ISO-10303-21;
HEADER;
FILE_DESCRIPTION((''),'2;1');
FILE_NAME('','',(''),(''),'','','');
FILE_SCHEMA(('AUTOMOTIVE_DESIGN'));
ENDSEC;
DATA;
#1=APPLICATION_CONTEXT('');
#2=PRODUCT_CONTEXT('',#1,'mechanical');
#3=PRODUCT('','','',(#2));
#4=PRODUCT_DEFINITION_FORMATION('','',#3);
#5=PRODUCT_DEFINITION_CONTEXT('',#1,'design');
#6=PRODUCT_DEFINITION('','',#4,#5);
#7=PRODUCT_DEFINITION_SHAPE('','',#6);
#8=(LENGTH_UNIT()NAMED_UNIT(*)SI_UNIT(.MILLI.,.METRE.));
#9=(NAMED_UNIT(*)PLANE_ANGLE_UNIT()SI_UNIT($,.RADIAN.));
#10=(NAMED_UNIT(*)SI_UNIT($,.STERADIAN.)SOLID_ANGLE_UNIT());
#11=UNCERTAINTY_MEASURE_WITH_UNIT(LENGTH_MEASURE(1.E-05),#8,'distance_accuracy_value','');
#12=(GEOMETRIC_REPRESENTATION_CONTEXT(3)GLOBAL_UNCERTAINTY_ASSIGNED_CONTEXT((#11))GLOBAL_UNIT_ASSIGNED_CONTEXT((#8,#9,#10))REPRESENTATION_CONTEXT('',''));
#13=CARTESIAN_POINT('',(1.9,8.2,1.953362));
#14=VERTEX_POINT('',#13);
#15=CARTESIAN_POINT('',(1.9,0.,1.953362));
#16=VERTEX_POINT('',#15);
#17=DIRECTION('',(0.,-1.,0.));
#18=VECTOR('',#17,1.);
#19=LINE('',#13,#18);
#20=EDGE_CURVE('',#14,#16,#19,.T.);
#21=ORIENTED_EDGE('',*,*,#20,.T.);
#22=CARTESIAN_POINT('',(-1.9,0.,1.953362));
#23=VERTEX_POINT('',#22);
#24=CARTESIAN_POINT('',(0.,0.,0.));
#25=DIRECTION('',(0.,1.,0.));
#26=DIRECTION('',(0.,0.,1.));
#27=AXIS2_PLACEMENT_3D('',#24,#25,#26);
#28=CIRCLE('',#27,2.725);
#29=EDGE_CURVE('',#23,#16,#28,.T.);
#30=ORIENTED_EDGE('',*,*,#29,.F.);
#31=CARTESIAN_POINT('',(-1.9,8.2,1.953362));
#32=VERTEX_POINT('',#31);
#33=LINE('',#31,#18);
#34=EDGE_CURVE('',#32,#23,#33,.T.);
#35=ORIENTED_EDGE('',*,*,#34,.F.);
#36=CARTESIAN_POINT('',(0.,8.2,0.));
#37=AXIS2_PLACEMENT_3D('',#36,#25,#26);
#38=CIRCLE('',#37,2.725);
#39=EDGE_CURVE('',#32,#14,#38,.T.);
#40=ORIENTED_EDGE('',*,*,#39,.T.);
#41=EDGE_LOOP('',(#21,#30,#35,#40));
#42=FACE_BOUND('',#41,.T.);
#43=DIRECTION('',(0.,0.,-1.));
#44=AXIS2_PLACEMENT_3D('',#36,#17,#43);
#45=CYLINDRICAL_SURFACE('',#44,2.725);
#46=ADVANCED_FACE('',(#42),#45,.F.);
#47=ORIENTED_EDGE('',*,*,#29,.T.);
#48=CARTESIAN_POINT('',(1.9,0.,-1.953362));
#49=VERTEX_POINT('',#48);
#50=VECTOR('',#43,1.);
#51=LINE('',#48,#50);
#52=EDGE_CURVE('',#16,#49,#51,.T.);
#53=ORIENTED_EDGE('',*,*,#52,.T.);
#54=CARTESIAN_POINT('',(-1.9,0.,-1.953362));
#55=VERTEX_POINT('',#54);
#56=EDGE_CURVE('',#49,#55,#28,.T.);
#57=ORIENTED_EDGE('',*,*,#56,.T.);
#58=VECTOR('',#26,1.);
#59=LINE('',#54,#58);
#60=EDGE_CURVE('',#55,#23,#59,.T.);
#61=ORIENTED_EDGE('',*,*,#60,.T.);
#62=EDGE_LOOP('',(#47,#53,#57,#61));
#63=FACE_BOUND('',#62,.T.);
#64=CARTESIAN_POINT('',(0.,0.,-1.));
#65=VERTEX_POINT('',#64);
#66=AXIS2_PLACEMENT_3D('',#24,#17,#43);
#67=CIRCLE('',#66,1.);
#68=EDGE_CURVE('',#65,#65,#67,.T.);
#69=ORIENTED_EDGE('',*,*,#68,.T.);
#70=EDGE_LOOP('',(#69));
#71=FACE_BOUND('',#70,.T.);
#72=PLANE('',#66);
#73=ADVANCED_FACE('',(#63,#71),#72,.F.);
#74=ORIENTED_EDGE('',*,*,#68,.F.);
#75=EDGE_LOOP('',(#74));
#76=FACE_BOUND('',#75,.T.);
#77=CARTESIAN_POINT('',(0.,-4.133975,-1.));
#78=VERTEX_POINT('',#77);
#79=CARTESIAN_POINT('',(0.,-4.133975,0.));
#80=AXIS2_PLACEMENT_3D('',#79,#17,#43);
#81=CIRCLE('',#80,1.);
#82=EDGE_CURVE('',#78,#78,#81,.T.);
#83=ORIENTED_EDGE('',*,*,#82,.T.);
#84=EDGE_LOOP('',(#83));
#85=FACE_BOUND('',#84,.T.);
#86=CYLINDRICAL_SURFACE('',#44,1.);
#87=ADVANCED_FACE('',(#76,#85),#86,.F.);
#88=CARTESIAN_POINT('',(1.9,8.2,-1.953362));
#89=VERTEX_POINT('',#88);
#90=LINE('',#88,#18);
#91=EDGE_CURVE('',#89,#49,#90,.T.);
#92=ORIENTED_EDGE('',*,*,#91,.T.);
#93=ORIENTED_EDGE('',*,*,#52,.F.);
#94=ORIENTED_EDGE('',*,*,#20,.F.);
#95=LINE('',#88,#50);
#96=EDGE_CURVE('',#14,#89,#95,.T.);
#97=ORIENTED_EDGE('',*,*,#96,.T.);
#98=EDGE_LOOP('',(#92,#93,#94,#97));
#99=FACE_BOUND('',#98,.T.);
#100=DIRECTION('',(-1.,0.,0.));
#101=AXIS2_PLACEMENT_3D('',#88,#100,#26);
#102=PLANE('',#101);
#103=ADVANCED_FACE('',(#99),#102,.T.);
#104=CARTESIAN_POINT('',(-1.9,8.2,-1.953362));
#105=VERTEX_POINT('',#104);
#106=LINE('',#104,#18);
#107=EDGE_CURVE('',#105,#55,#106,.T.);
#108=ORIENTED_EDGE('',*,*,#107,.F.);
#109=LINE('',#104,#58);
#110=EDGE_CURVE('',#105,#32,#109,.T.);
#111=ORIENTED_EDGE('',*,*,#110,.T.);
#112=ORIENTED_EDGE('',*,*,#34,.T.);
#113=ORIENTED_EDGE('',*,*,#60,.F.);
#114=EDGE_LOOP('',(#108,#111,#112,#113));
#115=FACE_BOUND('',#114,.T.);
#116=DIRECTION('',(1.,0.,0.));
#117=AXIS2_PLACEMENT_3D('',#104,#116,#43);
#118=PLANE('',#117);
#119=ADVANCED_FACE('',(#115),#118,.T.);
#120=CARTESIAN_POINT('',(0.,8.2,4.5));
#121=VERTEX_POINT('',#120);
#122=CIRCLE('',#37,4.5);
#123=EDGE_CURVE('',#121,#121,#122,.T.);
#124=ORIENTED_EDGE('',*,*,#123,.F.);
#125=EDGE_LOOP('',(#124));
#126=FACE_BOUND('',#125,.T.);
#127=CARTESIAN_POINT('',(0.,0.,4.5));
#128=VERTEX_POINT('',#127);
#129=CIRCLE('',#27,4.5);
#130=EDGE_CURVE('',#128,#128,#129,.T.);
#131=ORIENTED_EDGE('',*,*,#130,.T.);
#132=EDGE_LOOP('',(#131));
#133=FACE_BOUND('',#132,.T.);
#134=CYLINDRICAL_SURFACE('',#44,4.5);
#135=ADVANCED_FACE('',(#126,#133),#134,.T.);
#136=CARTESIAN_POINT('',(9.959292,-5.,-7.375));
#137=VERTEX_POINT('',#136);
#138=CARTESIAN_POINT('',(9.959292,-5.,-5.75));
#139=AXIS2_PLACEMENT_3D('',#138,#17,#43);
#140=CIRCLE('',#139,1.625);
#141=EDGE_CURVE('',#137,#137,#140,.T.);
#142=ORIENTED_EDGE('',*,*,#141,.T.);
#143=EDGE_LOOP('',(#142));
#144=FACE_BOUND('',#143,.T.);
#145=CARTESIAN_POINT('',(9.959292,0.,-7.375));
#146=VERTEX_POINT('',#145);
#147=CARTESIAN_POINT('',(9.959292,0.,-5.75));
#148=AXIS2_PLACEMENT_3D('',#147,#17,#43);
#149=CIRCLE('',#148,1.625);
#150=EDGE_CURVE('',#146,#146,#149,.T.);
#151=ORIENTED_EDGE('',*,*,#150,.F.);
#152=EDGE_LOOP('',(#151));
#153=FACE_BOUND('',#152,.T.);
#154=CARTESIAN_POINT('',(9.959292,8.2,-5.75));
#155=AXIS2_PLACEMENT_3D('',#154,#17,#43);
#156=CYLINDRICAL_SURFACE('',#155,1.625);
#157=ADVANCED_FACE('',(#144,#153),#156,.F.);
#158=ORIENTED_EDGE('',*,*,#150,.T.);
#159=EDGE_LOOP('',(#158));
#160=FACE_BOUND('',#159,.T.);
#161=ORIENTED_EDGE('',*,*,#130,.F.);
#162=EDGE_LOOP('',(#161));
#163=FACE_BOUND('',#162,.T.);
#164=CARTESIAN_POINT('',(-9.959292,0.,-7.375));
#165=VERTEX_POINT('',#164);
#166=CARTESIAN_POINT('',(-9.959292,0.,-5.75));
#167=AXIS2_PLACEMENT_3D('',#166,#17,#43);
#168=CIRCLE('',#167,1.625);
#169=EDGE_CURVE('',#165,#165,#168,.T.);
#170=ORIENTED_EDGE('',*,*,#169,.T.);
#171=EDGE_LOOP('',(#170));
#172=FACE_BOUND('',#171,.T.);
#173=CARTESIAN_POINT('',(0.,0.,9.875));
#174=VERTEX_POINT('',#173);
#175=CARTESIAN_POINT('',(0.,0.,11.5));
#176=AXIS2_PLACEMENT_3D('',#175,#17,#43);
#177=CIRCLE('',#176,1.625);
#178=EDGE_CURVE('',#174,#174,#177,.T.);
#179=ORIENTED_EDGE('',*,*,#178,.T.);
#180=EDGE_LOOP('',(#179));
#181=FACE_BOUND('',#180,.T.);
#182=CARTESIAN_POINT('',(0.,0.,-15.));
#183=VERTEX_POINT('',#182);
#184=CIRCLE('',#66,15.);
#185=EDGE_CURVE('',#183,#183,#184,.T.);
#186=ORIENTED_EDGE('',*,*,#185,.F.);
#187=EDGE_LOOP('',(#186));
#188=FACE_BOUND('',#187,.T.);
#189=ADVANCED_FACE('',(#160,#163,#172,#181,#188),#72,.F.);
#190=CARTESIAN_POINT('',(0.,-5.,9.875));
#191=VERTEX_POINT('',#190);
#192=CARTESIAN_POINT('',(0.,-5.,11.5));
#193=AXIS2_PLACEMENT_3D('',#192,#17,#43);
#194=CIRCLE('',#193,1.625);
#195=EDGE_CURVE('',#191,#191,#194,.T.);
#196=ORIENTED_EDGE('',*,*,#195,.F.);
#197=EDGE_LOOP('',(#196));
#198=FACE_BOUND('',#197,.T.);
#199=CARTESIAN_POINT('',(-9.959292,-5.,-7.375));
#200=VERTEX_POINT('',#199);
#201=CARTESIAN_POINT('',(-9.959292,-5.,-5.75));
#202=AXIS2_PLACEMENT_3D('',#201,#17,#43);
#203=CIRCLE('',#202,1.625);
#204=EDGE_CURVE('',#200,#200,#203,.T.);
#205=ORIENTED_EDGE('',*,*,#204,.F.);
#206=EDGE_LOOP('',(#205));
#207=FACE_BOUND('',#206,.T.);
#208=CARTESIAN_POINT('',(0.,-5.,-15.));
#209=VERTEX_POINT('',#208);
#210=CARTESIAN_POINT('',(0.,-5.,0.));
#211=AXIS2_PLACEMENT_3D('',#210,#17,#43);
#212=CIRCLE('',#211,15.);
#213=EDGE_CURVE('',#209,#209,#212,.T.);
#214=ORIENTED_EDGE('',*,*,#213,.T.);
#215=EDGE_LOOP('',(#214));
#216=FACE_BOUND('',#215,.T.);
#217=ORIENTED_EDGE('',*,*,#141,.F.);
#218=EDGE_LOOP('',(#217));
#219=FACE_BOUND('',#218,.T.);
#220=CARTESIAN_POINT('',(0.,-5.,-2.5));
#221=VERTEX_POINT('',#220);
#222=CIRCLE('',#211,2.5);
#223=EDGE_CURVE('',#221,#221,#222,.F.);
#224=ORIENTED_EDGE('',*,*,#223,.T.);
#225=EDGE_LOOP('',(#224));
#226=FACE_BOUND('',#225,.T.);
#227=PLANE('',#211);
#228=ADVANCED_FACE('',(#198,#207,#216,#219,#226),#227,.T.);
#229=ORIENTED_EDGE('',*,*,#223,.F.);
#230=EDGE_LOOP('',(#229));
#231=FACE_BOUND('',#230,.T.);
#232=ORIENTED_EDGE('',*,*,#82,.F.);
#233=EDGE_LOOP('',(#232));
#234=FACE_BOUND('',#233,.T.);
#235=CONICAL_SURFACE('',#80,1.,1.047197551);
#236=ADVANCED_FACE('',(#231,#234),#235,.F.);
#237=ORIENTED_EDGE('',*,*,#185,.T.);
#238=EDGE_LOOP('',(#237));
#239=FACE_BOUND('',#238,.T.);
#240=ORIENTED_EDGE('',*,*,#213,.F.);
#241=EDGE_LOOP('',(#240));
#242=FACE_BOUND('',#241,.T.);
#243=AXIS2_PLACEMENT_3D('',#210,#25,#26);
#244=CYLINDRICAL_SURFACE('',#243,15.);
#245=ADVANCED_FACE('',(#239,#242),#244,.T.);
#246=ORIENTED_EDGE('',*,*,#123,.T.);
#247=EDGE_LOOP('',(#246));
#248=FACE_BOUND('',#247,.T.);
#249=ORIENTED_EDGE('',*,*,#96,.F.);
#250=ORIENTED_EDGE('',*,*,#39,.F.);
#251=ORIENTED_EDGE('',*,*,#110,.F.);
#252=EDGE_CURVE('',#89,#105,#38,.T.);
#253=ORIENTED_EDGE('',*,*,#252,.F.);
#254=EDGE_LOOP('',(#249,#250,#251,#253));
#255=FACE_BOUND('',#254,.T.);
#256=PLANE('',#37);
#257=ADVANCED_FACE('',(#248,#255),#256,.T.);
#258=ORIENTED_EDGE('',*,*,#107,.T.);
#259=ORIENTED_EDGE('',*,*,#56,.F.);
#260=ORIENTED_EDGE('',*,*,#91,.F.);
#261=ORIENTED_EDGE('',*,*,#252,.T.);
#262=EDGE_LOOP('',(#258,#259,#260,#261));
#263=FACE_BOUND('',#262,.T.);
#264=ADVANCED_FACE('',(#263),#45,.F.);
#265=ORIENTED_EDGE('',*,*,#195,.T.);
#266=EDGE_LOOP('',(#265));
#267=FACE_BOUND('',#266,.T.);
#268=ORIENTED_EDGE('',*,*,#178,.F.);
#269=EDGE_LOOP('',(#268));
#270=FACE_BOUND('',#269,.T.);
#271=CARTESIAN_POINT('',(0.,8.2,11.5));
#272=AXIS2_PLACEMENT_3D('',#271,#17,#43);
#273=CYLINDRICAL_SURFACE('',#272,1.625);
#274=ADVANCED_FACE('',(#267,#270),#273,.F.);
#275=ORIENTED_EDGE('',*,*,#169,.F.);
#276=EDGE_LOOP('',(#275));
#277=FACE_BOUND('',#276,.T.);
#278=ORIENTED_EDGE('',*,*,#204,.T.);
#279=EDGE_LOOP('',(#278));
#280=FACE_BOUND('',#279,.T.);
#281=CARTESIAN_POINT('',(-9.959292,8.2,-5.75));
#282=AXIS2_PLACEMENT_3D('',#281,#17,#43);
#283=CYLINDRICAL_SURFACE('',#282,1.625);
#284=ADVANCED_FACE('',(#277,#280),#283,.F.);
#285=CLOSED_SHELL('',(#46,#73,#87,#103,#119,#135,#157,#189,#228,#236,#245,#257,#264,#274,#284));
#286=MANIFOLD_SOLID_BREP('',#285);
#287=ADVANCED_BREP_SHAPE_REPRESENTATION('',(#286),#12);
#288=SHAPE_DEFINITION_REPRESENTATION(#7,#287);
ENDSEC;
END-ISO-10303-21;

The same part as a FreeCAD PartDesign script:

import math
import FreeCAD as App
import Part
import Sketcher
from FreeCAD import Vector


def edges_at(feature, points):
    """Names of the edges that pass closest to the given points."""
    edges = feature.Shape.Edges
    near = lambda p: min(range(len(edges)), key=lambda i: edges[i].distToShape(Part.Vertex(*p))[0])
    return sorted({f"Edge{near(p) + 1}" for p in points})

doc = App.newDocument("Part")
body = doc.addObject("PartDesign::Body", "Body")

# Sketch on XZ plane
sketch1 = doc.addObject("Sketcher::SketchObject", "Sketch")
body.addObject(sketch1)
sketch1.AttachmentSupport = (doc.XZ_Plane, [""])
sketch1.MapMode = "FlatFace"
sketch1.addGeometry([
    Part.Circle(Vector(0, 0, 0), Vector(0, 0, 1), 4.5),  # 0
    Part.LineSegment(Vector(-1.9, 1.953362, 0), Vector(-1.9, -1.953362, 0)),  # 1
    Part.ArcOfCircle(Part.Circle(Vector(0, 0, 0), Vector(0, 0, 1), 2.725), math.radians(-134.206602), math.radians(-45.793398)),  # 2
    Part.LineSegment(Vector(1.9, -1.953362, 0), Vector(1.9, 1.953362, 0)),  # 3
    Part.ArcOfCircle(Part.Circle(Vector(0, 0, 0), Vector(0, 0, 1), 2.725), math.radians(45.793398), math.radians(134.206602)),  # 4
], False)
sketch1.addConstraint([
    Sketcher.Constraint("Coincident", 1, 2, 2, 1),
    Sketcher.Constraint("Coincident", 2, 2, 3, 1),
    Sketcher.Constraint("Coincident", 3, 2, 4, 1),
    Sketcher.Constraint("Coincident", 4, 2, 1, 1),
    Sketcher.Constraint("Vertical", 1),
    Sketcher.Constraint("Vertical", 3),
    Sketcher.Constraint("Coincident", 0, 3, -1, 1),
    Sketcher.Constraint("Coincident", 2, 3, -1, 1),
    Sketcher.Constraint("Coincident", 4, 3, -1, 1),
    Sketcher.Constraint("Equal", 2, 4),
    Sketcher.Constraint("Horizontal", 1, 2, 2, 2),
    Sketcher.Constraint("Diameter", 0, 9.0),
    Sketcher.Constraint("Radius", 2, 2.725),
    Sketcher.Constraint("DistanceX", 1, 2, -1, 1, 1.9),
])
pad1 = doc.addObject("PartDesign::Pad", "Pad")
body.addObject(pad1)
pad1.Profile = sketch1
pad1.Length = 8.2
pad1.Reversed = True

# Sketch on XZ plane
sketch2 = doc.addObject("Sketcher::SketchObject", "Sketch001")
body.addObject(sketch2)
sketch2.AttachmentSupport = (doc.XZ_Plane, [""])
sketch2.MapMode = "FlatFace"
sketch2.addGeometry(Part.Circle(Vector(0, 0, 0), Vector(0, 0, 1), 15), False)
sketch2.addConstraint([
    Sketcher.Constraint("Coincident", 0, 3, -1, 1),
    Sketcher.Constraint("Diameter", 0, 30.0),
])
pad2 = doc.addObject("PartDesign::Pad", "Pad001")
body.addObject(pad2)
pad2.Profile = sketch2
pad2.Length = 5

# Sketch on XZ plane
sketch3 = doc.addObject("Sketcher::SketchObject", "Sketch002")
body.addObject(sketch3)
sketch3.AttachmentSupport = (doc.XZ_Plane, [""])
sketch3.MapMode = "FlatFace"
sketch3.AttachmentOffset = App.Placement(Vector(0, 0, 5), App.Rotation())
sketch3.addGeometry(Part.Circle(Vector(0, 0, 0), Vector(0, 0, 1), 1), False)
sketch3.addConstraint([
    Sketcher.Constraint("Coincident", 0, 3, -1, 1),
    Sketcher.Constraint("Diameter", 0, 2.0),
])
pocket1 = doc.addObject("PartDesign::Pocket", "Pocket")
body.addObject(pocket1)
pocket1.Profile = sketch3
pocket1.Type = "ThroughAll"

# Sketch on XZ plane
sketch4 = doc.addObject("Sketcher::SketchObject", "Sketch003")
body.addObject(sketch4)
sketch4.AttachmentSupport = (doc.XZ_Plane, [""])
sketch4.MapMode = "FlatFace"
sketch4.AttachmentOffset = App.Placement(Vector(0, 0, 5), App.Rotation())
sketch4.addGeometry([
    Part.Circle(Vector(0, 11.5, 0), Vector(0, 0, 1), 1.625),
    Part.Circle(Vector(9.959292, -5.75, 0), Vector(0, 0, 1), 1.625),
    Part.Circle(Vector(-9.959292, -5.75, 0), Vector(0, 0, 1), 1.625),
], False)
sketch4.addConstraint([
    Sketcher.Constraint("Equal", 0, 1),
    Sketcher.Constraint("Equal", 1, 2),
    Sketcher.Constraint("Symmetric", 1, 3, 2, 3, -2),
    Sketcher.Constraint("PointOnObject", 0, 3, -2),
    Sketcher.Constraint("Diameter", 0, 3.25),
    Sketcher.Constraint("DistanceY", -1, 1, 0, 3, 11.5),
    Sketcher.Constraint("DistanceY", 1, 3, -1, 1, 5.75),
    Sketcher.Constraint("DistanceX", -1, 1, 1, 3, 9.959292),
])
pocket2 = doc.addObject("PartDesign::Pocket", "Pocket001")
body.addObject(pocket2)
pocket2.Profile = sketch4
pocket2.Type = "ThroughAll"
doc.recompute()

chamfer = doc.addObject("PartDesign::Chamfer", "Chamfer")
body.addObject(chamfer)
chamfer.Base = (pocket2, edges_at(pocket2, [(0, -5, 1)]))
chamfer.ChamferType = "Two distances"
chamfer.Size = 1.5
chamfer.Size2 = 0.866025

doc.recompute()
